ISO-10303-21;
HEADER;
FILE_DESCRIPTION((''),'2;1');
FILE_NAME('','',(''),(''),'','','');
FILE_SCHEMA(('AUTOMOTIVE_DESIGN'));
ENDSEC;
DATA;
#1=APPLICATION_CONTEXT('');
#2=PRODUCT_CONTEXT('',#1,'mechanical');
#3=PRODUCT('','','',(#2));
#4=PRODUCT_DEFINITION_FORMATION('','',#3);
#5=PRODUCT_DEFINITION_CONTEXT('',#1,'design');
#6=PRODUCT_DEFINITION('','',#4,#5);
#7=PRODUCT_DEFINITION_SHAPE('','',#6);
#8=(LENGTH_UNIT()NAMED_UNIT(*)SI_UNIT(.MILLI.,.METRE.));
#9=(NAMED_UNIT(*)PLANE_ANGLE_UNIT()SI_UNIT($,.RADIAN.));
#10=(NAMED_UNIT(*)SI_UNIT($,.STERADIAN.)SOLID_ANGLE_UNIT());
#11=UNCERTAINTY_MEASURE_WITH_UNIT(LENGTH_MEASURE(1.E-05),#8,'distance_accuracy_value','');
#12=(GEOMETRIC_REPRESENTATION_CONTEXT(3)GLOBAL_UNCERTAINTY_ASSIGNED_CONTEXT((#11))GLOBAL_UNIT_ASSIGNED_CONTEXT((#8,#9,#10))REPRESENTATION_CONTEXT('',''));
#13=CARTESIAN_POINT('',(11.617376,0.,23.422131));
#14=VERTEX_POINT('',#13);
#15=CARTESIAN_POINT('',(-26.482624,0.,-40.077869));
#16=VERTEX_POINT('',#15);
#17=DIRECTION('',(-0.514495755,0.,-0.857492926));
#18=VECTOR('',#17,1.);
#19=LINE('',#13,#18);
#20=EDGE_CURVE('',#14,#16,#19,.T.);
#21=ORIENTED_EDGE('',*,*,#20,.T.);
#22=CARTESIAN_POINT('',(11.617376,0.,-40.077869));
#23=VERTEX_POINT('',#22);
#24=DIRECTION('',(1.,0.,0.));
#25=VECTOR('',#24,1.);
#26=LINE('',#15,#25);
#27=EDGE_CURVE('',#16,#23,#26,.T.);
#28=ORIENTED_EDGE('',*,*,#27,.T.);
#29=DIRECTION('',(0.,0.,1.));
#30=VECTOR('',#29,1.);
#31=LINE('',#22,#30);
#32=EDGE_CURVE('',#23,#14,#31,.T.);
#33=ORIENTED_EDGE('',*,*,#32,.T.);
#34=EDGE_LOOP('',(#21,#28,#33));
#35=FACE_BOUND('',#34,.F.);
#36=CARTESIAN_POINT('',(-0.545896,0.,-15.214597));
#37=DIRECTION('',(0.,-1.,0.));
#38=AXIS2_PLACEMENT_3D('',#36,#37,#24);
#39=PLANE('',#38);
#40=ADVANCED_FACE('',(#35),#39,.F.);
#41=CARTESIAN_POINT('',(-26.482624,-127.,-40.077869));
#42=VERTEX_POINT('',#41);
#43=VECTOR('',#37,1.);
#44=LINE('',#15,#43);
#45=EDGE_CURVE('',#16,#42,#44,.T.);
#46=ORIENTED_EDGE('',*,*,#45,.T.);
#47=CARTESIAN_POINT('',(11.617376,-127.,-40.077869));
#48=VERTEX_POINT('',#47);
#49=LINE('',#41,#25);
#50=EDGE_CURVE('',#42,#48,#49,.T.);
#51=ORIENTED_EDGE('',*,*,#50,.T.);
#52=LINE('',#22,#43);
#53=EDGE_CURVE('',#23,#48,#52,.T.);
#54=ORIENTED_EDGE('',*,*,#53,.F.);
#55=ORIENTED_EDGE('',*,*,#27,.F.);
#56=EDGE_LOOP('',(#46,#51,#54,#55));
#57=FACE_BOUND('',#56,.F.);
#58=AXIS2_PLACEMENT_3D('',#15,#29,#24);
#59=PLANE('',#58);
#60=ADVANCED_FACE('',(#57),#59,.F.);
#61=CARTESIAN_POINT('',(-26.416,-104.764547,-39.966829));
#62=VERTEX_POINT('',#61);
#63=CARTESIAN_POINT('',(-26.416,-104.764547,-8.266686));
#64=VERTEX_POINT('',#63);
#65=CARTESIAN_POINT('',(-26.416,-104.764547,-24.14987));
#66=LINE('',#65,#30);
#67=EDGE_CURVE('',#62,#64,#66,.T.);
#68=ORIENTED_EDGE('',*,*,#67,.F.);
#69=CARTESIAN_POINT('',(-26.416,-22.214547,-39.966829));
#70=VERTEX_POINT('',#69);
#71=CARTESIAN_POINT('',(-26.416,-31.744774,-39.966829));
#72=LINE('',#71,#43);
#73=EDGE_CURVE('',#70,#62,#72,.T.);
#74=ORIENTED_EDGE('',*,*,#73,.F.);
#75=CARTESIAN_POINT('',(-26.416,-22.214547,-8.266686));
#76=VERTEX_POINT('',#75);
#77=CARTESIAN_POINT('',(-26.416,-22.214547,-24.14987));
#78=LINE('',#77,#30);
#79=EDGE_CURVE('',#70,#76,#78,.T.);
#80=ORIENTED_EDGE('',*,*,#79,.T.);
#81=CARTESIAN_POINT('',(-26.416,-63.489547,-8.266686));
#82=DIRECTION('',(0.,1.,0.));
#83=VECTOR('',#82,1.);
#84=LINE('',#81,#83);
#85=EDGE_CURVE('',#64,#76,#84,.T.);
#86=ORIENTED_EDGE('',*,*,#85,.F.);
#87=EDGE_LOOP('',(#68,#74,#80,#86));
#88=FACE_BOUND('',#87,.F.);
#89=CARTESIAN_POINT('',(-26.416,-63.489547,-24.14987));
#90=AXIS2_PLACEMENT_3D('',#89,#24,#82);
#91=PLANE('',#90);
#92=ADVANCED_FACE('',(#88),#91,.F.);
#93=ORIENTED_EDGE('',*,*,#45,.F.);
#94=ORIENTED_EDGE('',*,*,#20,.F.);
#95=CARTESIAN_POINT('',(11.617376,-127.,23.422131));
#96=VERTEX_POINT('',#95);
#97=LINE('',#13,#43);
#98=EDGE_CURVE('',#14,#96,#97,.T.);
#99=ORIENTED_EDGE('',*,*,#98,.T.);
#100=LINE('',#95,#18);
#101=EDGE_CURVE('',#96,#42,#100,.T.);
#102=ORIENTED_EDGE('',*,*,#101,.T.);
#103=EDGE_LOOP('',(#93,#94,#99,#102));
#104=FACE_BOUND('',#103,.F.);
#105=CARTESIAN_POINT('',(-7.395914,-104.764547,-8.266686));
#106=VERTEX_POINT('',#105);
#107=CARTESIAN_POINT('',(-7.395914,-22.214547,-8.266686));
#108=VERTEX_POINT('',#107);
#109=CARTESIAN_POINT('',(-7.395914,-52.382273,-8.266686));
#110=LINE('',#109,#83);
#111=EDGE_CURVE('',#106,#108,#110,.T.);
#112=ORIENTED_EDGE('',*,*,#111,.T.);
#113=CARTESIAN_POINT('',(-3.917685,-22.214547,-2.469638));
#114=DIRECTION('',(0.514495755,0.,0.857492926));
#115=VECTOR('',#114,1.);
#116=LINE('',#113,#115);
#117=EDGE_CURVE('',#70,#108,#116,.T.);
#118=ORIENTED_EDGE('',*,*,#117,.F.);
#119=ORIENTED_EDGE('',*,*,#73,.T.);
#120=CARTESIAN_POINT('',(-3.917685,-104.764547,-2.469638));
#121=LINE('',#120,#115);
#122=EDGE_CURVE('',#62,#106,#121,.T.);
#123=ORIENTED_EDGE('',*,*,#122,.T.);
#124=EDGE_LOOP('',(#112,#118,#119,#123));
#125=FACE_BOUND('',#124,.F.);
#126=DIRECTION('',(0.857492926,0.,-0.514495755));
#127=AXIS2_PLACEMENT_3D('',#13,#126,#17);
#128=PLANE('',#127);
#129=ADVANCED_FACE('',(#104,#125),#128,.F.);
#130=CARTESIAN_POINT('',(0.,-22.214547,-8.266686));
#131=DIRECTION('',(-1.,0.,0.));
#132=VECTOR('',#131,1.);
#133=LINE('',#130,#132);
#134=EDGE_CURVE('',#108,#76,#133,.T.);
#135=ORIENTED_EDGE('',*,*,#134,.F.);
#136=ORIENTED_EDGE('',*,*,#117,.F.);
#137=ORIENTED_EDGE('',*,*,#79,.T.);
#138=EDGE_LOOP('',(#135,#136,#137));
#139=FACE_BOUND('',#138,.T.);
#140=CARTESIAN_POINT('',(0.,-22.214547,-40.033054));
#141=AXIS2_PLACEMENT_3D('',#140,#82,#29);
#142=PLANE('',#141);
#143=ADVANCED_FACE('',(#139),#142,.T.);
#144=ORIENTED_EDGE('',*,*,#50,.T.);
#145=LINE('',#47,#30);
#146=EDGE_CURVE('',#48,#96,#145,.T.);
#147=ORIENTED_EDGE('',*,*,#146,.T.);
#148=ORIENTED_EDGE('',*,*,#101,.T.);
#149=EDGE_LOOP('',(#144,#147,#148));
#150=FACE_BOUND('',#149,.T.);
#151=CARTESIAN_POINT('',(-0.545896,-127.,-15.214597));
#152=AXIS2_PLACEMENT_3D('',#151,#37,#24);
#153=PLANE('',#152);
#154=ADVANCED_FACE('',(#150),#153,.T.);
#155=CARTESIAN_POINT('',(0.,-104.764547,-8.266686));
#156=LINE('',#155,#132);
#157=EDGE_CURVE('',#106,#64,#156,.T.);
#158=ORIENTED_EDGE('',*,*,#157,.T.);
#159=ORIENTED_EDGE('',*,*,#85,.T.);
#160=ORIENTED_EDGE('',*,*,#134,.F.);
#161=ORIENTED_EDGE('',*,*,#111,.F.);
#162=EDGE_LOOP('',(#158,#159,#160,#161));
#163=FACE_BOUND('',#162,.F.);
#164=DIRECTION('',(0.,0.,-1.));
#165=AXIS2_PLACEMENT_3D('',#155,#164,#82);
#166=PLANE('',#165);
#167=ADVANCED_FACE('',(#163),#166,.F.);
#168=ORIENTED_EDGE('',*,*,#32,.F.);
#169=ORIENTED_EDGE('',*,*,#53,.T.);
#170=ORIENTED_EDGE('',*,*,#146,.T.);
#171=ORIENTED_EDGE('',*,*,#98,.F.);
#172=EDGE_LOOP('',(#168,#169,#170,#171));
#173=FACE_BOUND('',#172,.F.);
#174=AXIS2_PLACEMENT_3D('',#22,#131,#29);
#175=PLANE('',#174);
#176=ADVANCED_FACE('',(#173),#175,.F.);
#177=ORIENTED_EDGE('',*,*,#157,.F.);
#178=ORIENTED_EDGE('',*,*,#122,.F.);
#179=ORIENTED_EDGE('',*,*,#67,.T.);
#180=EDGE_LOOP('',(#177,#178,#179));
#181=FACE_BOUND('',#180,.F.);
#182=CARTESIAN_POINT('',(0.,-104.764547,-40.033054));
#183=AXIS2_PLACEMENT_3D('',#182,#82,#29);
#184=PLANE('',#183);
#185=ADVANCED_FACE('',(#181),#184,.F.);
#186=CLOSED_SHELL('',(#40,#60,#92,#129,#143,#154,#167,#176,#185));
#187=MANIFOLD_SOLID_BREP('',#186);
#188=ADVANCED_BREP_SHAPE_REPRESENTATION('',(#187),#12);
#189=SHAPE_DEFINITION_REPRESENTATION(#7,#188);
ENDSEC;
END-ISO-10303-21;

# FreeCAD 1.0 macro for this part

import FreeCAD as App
import Part
import Sketcher
from FreeCAD import Vector
Q = App.Units.Quantity


def add_polygon(sketch, points):
    """Adds a closed chain of lines whose ends are joined by coincident constraints."""
    first, n = sketch.GeometryCount, len(points)
    for a, b in zip(points, points[1:] + points[:1]):
        sketch.addGeometry(Part.LineSegment(App.Vector(*a, 0), App.Vector(*b, 0)), False)
    for i in range(n):
        sketch.addConstraint(Sketcher.Constraint("Coincident", first + i, 2, first + (i + 1) % n, 1))

doc = App.newDocument("Part")
body = doc.addObject("PartDesign::Body", "Body")

sketch1 = doc.addObject("Sketcher::SketchObject", "Sketch")
body.addObject(sketch1)
sketch1.AttachmentSupport = (doc.XZ_Plane, [""])
sketch1.MapMode = "FlatFace"
add_polygon(sketch1, [(11.617376, 23.422131), (-26.482624, -40.077869), (11.617376, -40.077869)])
sketch1.addConstraint(Sketcher.Constraint("Horizontal", 1))
sketch1.addConstraint(Sketcher.Constraint("Vertical", 2))
sketch1.addConstraint(Sketcher.Constraint("DistanceX", 1, 1, 1, 2, Q("1.5 in")))
sketch1.addConstraint(Sketcher.Constraint("DistanceY", 2, 1, 2, 2, Q("2.5 in")))
sketch1.addConstraint(Sketcher.Constraint("DistanceY", 0, 2, -1, 1, 40.077869))
sketch1.addConstraint(Sketcher.Constraint("DistanceX", 0, 2, -1, 1, 26.482624))
pad1 = doc.addObject("PartDesign::Pad", "Pad")
body.addObject(pad1)
pad1.Profile = sketch1
pad1.Length = Q("5 in")

sketch2 = doc.addObject("Sketcher::SketchObject", "Sketch001")
body.addObject(sketch2)
sketch2.AttachmentSupport = (doc.YZ_Plane, [""])
sketch2.MapMode = "FlatFace"
add_polygon(sketch2, [(-104.764547, -8.266686), (-104.764547, -40.033054), (-22.214547, -40.033054), (-22.214547, -8.266686)])
sketch2.addConstraint(Sketcher.Constraint("Vertical", 0))
sketch2.addConstraint(Sketcher.Constraint("Horizontal", 1))
sketch2.addConstraint(Sketcher.Constraint("Vertical", 2))
sketch2.addConstraint(Sketcher.Constraint("Horizontal", 3))
sketch2.addConstraint(Sketcher.Constraint("DistanceX", 1, 1, 1, 2, Q("3.25 in")))
sketch2.addConstraint(Sketcher.Constraint("DistanceY", 0, 2, 0, 1, 31.766368))
sketch2.addConstraint(Sketcher.Constraint("DistanceX", 0, 2, -1, 1, 104.764547))
sketch2.addConstraint(Sketcher.Constraint("DistanceY", 0, 2, -1, 1, 40.033054))
pad2 = doc.addObject("PartDesign::Pad", "Pad001")
body.addObject(pad2)
pad2.Profile = sketch2
pad2.Length = Q("1.04 in")
pad2.Reversed = True

doc.recompute()
